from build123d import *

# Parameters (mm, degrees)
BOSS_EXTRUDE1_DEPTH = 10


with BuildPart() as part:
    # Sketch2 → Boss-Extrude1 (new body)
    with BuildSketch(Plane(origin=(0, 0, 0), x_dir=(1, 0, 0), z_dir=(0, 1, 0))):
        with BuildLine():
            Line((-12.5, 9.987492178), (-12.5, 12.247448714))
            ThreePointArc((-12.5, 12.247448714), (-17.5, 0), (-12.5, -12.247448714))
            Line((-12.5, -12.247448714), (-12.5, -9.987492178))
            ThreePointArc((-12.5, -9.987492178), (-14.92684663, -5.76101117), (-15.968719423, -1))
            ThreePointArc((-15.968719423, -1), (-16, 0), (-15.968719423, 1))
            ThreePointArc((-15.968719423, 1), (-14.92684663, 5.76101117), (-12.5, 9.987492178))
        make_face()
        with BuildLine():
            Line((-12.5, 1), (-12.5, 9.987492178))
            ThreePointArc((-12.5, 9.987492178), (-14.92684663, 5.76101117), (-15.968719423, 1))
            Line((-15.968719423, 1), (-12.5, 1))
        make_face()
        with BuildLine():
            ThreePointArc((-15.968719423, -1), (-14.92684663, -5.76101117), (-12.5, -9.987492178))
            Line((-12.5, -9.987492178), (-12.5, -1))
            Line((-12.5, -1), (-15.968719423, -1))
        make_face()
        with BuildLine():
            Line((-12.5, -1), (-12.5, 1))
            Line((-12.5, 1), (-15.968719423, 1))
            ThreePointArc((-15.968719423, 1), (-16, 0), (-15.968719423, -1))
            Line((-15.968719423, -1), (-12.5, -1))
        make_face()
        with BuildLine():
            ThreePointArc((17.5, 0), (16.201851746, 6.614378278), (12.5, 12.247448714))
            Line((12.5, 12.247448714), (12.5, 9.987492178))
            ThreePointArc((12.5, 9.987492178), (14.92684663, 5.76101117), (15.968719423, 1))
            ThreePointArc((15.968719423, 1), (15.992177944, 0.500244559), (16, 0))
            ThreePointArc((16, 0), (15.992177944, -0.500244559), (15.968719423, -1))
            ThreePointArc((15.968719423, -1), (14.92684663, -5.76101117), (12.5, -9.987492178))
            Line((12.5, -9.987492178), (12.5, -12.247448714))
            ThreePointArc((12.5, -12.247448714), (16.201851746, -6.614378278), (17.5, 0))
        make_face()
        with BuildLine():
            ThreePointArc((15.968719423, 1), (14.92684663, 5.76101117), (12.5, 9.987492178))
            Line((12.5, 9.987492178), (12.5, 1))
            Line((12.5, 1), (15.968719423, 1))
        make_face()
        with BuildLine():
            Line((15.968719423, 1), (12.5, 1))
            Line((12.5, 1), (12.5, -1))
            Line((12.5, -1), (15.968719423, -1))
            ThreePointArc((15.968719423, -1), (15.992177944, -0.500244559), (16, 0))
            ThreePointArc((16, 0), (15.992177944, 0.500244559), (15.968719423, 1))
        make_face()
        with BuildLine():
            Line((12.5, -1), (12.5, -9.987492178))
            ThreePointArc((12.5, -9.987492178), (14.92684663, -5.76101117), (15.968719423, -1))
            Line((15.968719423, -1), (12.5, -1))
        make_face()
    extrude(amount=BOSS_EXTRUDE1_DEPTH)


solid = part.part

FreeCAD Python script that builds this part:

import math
import FreeCAD as App
import Part
import Sketcher
Q = App.Units.Quantity

doc = App.newDocument("Part")
params = doc.addObject("Spreadsheet::Sheet", "Params")
for row, (alias, value) in enumerate([
    ("sketch1_radius", "17.5 mm"),
    ("pad1_length", "10 mm"),
], start=1):
    params.set(f"A{row}", alias)
    params.set(f"B{row}", "=" + value)
    params.setAlias(f"B{row}", alias)

body = doc.addObject("PartDesign::Body", "Body")
body.AllowCompound = True

# Sketch on XZ plane
sketch1 = body.newObject("Sketcher::SketchObject", "Sketch")
sketch1.AttachmentSupport = (doc.getObject("XZ_Plane"), [""])
sketch1.MapMode = "FlatFace"
sketch1.addGeometry(Part.ArcOfCircle(Part.Circle(App.Vector(0, 0, 0), App.Vector(0, 0, 1), 18), math.radians(136), math.radians(224)), False)
sketch1.addGeometry(Part.LineSegment(App.Vector(-12, 12, 0), App.Vector(-12, -12, 0)), False)
sketch1.addGeometry(Part.ArcOfCircle(Part.Circle(App.Vector(0, 0, 0), App.Vector(0, 0, 1), 17), math.radians(-44), math.radians(0)), False)
sketch1.addGeometry(Part.LineSegment(App.Vector(12, -12, 0), App.Vector(12, 12, 0)), False)
sketch1.addGeometry(Part.ArcOfCircle(Part.Circle(App.Vector(0, 0, 0), App.Vector(0, 0, 1), 17), math.radians(0), math.radians(44)), False)
sketch1.addConstraint(Sketcher.Constraint("Coincident", 0, 1, 1, 1))
sketch1.addConstraint(Sketcher.Constraint("Coincident", 1, 2, 0, 2))
sketch1.addConstraint(Sketcher.Constraint("Coincident", 2, 1, 3, 1))
sketch1.addConstraint(Sketcher.Constraint("Coincident", 3, 2, 4, 2))
sketch1.addConstraint(Sketcher.Constraint("Tangent", 4, 1, 2, 2))
sketch1.addConstraint(Sketcher.Constraint("Vertical", 1))
sketch1.addConstraint(Sketcher.Constraint("Vertical", 3))
sketch1.addConstraint(Sketcher.Constraint("Coincident", 0, 3, -1, 1))
sketch1.addConstraint(Sketcher.Constraint("Coincident", 2, 3, -1, 1))
sketch1.addConstraint(Sketcher.Constraint("Equal", 0, 2))
sketch1.addConstraint(Sketcher.Constraint("Equal", 2, 4))
sketch1.addConstraint(Sketcher.Constraint("PointOnObject", 4, 1, -1))
sketch1.addConstraint(Sketcher.Constraint("Horizontal", 1, 2, 2, 1))
sketch1.addConstraint(Sketcher.Constraint("Radius", 0, Q("17.5 mm")))
sketch1.addConstraint(Sketcher.Constraint("DistanceX", 1, 2, 2, 1, Q("25 mm")))
sketch1.setExpression("Constraints[13]", "Params.sketch1_radius")
pad1 = body.newObject("PartDesign::Pad", "Pad")
pad1.Profile = sketch1
pad1.setExpression("Length", "Params.pad1_length")
pad1.Reversed = True

doc.recompute()
